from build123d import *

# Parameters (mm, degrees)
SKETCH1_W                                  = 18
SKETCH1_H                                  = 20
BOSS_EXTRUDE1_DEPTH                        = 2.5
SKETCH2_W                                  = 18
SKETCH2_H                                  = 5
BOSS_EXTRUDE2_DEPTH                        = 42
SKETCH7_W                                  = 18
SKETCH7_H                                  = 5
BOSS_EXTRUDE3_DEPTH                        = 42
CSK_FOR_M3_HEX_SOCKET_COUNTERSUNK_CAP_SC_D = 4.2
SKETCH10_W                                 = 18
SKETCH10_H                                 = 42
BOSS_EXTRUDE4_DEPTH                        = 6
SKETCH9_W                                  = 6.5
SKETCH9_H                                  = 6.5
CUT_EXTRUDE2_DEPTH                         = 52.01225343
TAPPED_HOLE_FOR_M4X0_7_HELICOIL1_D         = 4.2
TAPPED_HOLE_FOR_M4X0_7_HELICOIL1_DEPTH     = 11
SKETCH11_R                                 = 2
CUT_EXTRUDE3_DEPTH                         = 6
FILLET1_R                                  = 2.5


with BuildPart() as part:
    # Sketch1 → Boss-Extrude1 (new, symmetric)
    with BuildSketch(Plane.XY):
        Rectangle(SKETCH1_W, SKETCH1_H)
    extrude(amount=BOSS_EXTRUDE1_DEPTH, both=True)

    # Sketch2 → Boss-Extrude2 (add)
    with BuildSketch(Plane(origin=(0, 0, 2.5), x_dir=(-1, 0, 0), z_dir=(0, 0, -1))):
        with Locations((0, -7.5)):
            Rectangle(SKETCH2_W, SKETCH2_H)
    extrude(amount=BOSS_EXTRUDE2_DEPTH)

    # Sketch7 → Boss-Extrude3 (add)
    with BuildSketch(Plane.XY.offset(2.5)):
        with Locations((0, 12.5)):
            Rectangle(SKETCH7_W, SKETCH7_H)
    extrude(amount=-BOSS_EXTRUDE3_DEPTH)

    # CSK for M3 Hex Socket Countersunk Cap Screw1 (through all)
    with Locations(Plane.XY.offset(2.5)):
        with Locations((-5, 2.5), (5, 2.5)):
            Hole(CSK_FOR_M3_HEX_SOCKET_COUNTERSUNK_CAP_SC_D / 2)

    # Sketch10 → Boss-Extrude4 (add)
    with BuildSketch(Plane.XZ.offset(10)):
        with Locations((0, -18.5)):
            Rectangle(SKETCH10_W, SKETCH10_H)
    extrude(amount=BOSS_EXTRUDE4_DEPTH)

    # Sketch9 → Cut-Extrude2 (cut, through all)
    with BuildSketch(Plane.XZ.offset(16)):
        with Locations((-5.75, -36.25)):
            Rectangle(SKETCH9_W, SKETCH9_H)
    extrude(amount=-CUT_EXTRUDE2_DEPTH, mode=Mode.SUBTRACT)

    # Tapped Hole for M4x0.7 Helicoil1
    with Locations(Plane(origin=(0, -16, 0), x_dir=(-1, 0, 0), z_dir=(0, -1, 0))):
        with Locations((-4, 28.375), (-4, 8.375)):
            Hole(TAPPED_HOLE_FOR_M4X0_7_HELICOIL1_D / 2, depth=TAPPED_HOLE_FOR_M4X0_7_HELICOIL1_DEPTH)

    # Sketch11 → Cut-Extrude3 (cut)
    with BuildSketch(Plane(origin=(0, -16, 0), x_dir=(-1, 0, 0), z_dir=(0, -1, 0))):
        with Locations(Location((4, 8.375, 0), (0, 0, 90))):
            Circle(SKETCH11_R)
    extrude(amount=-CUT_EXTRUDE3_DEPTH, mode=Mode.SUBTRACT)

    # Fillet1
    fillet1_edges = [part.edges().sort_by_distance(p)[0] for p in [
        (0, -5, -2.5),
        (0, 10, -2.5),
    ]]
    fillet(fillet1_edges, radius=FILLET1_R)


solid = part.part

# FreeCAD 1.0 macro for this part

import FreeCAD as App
import Part
import Sketcher

V = App.Vector


def edges_at(feature, points):
    """Names of the edges that pass closest to the given points."""
    edges = feature.Shape.Edges
    near = lambda p: min(range(len(edges)), key=lambda i: edges[i].distToShape(Part.Vertex(*p))[0])
    return sorted({f"Edge{near(p) + 1}" for p in points})


def add_polygon(sketch, points):
    """Adds a closed chain of lines whose ends are joined by coincident constraints."""
    first, n = sketch.GeometryCount, len(points)
    for a, b in zip(points, points[1:] + points[:1]):
        sketch.addGeometry(Part.LineSegment(App.Vector(*a, 0), App.Vector(*b, 0)), False)
    for i in range(n):
        sketch.addConstraint(Sketcher.Constraint("Coincident", first + i, 2, first + (i + 1) % n, 1))

doc = App.newDocument("Part")
body = doc.addObject("PartDesign::Body", "Body")

sketch1 = doc.addObject("Sketcher::SketchObject", "Sketch")
body.addObject(sketch1)
sketch1.AttachmentSupport = (doc.XY_Plane, [""])
sketch1.MapMode = "FlatFace"
add_polygon(sketch1, [(-9, 10), (-9, -10), (9, -10), (9, 10)])
sketch1.addConstraint([
    Sketcher.Constraint("Vertical", 0),
    Sketcher.Constraint("Horizontal", 1),
    Sketcher.Constraint("Vertical", 2),
    Sketcher.Constraint("Horizontal", 3),
    Sketcher.Constraint("Symmetric", 0, 2, 2, 2, -1, 1),
    Sketcher.Constraint("DistanceX", 1, 1, 1, 2, 18.0),
    Sketcher.Constraint("DistanceY", 0, 2, 0, 1, 20.0),
])
pad1 = doc.addObject("PartDesign::Pad", "Pad")
body.addObject(pad1)
pad1.Profile = sketch1
pad1.Length = 5
pad1.Midplane = True

sketch2 = doc.addObject("Sketcher::SketchObject", "Sketch001")
body.addObject(sketch2)
sketch2.AttachmentSupport = (doc.XY_Plane, [""])
sketch2.MapMode = "FlatFace"
sketch2.AttachmentOffset = App.Placement(V(0, 0, 2.5), App.Rotation())
add_polygon(sketch2, [(9, -5), (9, -10), (-9, -10), (-9, -5)])
sketch2.addConstraint([
    Sketcher.Constraint("Vertical", 0),
    Sketcher.Constraint("Horizontal", 1),
    Sketcher.Constraint("Vertical", 2),
    Sketcher.Constraint("Horizontal", 3),
    Sketcher.Constraint("DistanceX", 1, 2, 1, 1, 18.0),
    Sketcher.Constraint("DistanceY", 0, 2, 0, 1, 5.0),
    Sketcher.Constraint("DistanceX", -1, 1, 0, 2, 9.0),
    Sketcher.Constraint("DistanceY", 0, 2, -1, 1, 10.0),
])
pad2 = doc.addObject("PartDesign::Pad", "Pad001")
body.addObject(pad2)
pad2.Profile = sketch2
pad2.Length = 42
pad2.Reversed = True

sketch3 = doc.addObject("Sketcher::SketchObject", "Sketch002")
body.addObject(sketch3)
sketch3.AttachmentSupport = (doc.XY_Plane, [""])
sketch3.MapMode = "FlatFace"
sketch3.AttachmentOffset = App.Placement(V(0, 0, 2.5), App.Rotation())
add_polygon(sketch3, [(-9, 15), (-9, 10), (9, 10), (9, 15)])
sketch3.addConstraint([
    Sketcher.Constraint("Vertical", 0),
    Sketcher.Constraint("Horizontal", 1),
    Sketcher.Constraint("Vertical", 2),
    Sketcher.Constraint("Horizontal", 3),
    Sketcher.Constraint("DistanceX", 1, 1, 1, 2, 18.0),
    Sketcher.Constraint("DistanceY", 0, 2, 0, 1, 5.0),
    Sketcher.Constraint("DistanceX", 0, 2, -1, 1, 9.0),
    Sketcher.Constraint("DistanceY", -1, 1, 0, 2, 10.0),
])
pad3 = doc.addObject("PartDesign::Pad", "Pad002")
body.addObject(pad3)
pad3.Profile = sketch3
pad3.Length = 42
pad3.Reversed = True

sketch4 = doc.addObject("Sketcher::SketchObject", "Sketch003")
body.addObject(sketch4)
sketch4.AttachmentSupport = (doc.XY_Plane, [""])
sketch4.MapMode = "FlatFace"
sketch4.AttachmentOffset = App.Placement(V(0, 0, 2.5), App.Rotation())
sketch4.addGeometry([
    Part.Circle(V(-5, 2.5, 0), V(0, 0, 1), 2.1),
    Part.Circle(V(5, 2.5, 0), V(0, 0, 1), 2.1),
], False)
sketch4.addConstraint([
    Sketcher.Constraint("Equal", 0, 1),
    Sketcher.Constraint("Symmetric", 0, 3, 1, 3, -2),
    Sketcher.Constraint("Diameter", 0, 4.2),
    Sketcher.Constraint("DistanceX", 0, 3, -1, 1, 5.0),
    Sketcher.Constraint("DistanceY", -1, 1, 0, 3, 2.5),
])
doc.recompute()
hole = doc.addObject("PartDesign::Hole", "Hole")
body.addObject(hole)
hole.Profile = sketch4
hole.ThreadType = "None"
hole.Diameter = 4.2
hole.DepthType = "ThroughAll"

sketch5 = doc.addObject("Sketcher::SketchObject", "Sketch004")
body.addObject(sketch5)
sketch5.AttachmentSupport = (doc.XZ_Plane, [""])
sketch5.MapMode = "FlatFace"
sketch5.AttachmentOffset = App.Placement(V(0, 0, 10), App.Rotation())
add_polygon(sketch5, [(-9, 2.5), (-9, -39.5), (9, -39.5), (9, 2.5)])
sketch5.addConstraint([
    Sketcher.Constraint("Vertical", 0),
    Sketcher.Constraint("Horizontal", 1),
    Sketcher.Constraint("Vertical", 2),
    Sketcher.Constraint("Horizontal", 3),
    Sketcher.Constraint("DistanceX", 1, 1, 1, 2, 18.0),
    Sketcher.Constraint("DistanceY", 0, 2, 0, 1, 42.0),
    Sketcher.Constraint("DistanceX", 0, 2, -1, 1, 9.0),
    Sketcher.Constraint("DistanceY", 0, 2, -1, 1, 39.5),
])
pad4 = doc.addObject("PartDesign::Pad", "Pad003")
body.addObject(pad4)
pad4.Profile = sketch5
pad4.Length = 6

sketch6 = doc.addObject("Sketcher::SketchObject", "Sketch005")
body.addObject(sketch6)
sketch6.AttachmentSupport = (doc.XZ_Plane, [""])
sketch6.MapMode = "FlatFace"
sketch6.AttachmentOffset = App.Placement(V(0, 0, 16), App.Rotation())
add_polygon(sketch6, [(-9, -33), (-9, -39.5), (-2.5, -39.5), (-2.5, -33)])
sketch6.addConstraint([
    Sketcher.Constraint("Vertical", 0),
    Sketcher.Constraint("Horizontal", 1),
    Sketcher.Constraint("Vertical", 2),
    Sketcher.Constraint("Horizontal", 3),
    Sketcher.Constraint("Equal", 3, 0),
    Sketcher.Constraint("DistanceX", 1, 1, 1, 2, 6.5),
    Sketcher.Constraint("DistanceX", 0, 2, -1, 1, 9.0),
    Sketcher.Constraint("DistanceY", 2, 2, -1, 1, 33.0),
])
pocket1 = doc.addObject("PartDesign::Pocket", "Pocket")
body.addObject(pocket1)
pocket1.Profile = sketch6
pocket1.Type = "ThroughAll"

sketch7 = doc.addObject("Sketcher::SketchObject", "Sketch006")
body.addObject(sketch7)
sketch7.AttachmentSupport = (doc.XZ_Plane, [""])
sketch7.MapMode = "FlatFace"
sketch7.AttachmentOffset = App.Placement(V(0, 0, 16), App.Rotation())
sketch7.addGeometry([
    Part.Circle(V(4, -28.375, 0), V(0, 0, 1), 2.1),
    Part.Circle(V(4, -8.375, 0), V(0, 0, 1), 2.1),
], False)
sketch7.addConstraint([
    Sketcher.Constraint("Equal", 0, 1),
    Sketcher.Constraint("Vertical", 0, 3, 1, 3),
    Sketcher.Constraint("Diameter", 0, 4.2),
    Sketcher.Constraint("DistanceX", -1, 1, 0, 3, 4.0),
    Sketcher.Constraint("DistanceY", 0, 3, 1, 3, 20.0),
    Sketcher.Constraint("DistanceY", 0, 3, -1, 1, 28.375),
])
doc.recompute()
hole2 = doc.addObject("PartDesign::Hole", "Hole001")
body.addObject(hole2)
hole2.Profile = sketch7
hole2.ThreadType = "None"
hole2.Diameter = 4.2
hole2.DepthType = "Dimension"
hole2.Depth = 11
hole2.DrillPoint = "Flat"

sketch8 = doc.addObject("Sketcher::SketchObject", "Sketch007")
body.addObject(sketch8)
sketch8.AttachmentSupport = (doc.XZ_Plane, [""])
sketch8.MapMode = "FlatFace"
sketch8.AttachmentOffset = App.Placement(V(0, 0, 16), App.Rotation())
sketch8.addGeometry(Part.Circle(V(-4, -8.375, 0), V(0, 0, 1), 2), False)
sketch8.addConstraint([
    Sketcher.Constraint("Diameter", 0, 4.0),
    Sketcher.Constraint("DistanceX", 0, 3, -1, 1, 4.0),
    Sketcher.Constraint("DistanceY", 0, 3, -1, 1, 8.375),
])
pocket2 = doc.addObject("PartDesign::Pocket", "Pocket001")
body.addObject(pocket2)
pocket2.Profile = sketch8
pocket2.Length = 6
doc.recompute()

fillet = doc.addObject("PartDesign::Fillet", "Fillet")
body.addObject(fillet)
fillet.Base = (pocket2, edges_at(pocket2, [(0, -5, -2.5), (0, 10, -2.5)]))
fillet.Radius = 2.5

doc.recompute()
